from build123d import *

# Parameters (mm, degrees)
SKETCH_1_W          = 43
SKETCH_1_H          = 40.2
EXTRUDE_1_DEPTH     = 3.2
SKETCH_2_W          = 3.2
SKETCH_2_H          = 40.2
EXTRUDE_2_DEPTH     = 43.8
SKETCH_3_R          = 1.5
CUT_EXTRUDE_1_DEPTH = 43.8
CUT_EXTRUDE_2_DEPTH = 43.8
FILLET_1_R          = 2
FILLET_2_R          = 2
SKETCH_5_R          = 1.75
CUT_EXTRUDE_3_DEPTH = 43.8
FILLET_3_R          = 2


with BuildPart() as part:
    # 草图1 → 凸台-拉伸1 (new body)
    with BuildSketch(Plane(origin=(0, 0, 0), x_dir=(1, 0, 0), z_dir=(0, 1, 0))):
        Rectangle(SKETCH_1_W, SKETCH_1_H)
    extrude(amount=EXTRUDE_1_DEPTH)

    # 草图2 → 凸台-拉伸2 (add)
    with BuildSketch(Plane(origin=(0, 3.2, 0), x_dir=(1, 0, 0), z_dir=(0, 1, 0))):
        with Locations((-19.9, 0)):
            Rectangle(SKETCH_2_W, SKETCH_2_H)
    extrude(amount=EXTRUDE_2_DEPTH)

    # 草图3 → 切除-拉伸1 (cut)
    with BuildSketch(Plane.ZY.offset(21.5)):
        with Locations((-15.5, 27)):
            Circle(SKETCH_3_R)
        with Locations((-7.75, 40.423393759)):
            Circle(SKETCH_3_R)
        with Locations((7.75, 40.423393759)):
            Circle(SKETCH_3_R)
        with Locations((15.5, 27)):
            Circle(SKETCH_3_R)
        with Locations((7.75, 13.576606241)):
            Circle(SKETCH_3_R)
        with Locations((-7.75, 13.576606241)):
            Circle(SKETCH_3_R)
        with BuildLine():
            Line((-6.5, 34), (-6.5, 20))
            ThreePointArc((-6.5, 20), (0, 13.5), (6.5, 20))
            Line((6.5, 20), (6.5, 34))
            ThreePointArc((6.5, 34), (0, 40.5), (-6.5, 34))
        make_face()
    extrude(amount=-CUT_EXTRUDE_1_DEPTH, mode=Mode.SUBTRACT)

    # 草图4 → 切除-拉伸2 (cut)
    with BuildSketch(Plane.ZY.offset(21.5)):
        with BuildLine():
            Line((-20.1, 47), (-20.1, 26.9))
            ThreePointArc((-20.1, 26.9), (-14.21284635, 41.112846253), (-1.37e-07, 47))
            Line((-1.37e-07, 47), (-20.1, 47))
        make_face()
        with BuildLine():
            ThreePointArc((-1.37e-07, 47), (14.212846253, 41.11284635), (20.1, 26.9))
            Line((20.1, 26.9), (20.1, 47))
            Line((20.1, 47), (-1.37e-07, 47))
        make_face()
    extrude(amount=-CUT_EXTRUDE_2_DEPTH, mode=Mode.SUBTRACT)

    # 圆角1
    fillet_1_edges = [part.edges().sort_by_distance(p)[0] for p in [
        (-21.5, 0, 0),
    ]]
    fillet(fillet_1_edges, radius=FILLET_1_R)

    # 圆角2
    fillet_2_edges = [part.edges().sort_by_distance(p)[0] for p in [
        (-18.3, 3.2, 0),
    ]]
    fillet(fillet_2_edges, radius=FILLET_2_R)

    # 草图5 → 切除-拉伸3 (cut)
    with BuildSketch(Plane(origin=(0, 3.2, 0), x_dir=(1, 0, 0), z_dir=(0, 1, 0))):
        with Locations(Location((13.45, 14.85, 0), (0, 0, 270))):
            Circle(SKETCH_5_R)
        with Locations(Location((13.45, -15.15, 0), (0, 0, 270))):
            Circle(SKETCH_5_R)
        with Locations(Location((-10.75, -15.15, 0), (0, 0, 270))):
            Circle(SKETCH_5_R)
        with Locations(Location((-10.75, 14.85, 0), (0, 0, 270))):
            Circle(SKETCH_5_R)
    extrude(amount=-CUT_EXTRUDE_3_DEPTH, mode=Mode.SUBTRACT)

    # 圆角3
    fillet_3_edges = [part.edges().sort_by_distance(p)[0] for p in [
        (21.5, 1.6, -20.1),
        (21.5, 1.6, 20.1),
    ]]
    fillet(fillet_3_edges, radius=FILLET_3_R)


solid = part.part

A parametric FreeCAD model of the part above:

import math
import FreeCAD as App
import Part
import Sketcher

V = App.Vector


def edges_at(feature, points):
    """Names of the edges that pass closest to the given points."""
    edges = feature.Shape.Edges
    near = lambda p: min(range(len(edges)), key=lambda i: edges[i].distToShape(Part.Vertex(*p))[0])
    return sorted({f"Edge{near(p) + 1}" for p in points})


def add_polygon(sketch, points):
    """Adds a closed chain of lines whose ends are joined by coincident constraints."""
    first, n = sketch.GeometryCount, len(points)
    for a, b in zip(points, points[1:] + points[:1]):
        sketch.addGeometry(Part.LineSegment(App.Vector(*a, 0), App.Vector(*b, 0)), False)
    for i in range(n):
        sketch.addConstraint(Sketcher.Constraint("Coincident", first + i, 2, first + (i + 1) % n, 1))

doc = App.newDocument("Part")
body = doc.addObject("PartDesign::Body", "Body")

# Sketch on XZ plane
sketch1 = body.newObject("Sketcher::SketchObject", "Sketch")
sketch1.AttachmentSupport = (doc.getObject("XZ_Plane"), [""])
sketch1.MapMode = "FlatFace"
add_polygon(sketch1, [(-22, -20), (-22, 20), (22, 20), (22, -20)])  # lines 0-3
sketch1.addConstraint([
    Sketcher.Constraint("Vertical", 0),
    Sketcher.Constraint("Horizontal", 1),
    Sketcher.Constraint("Vertical", 2),
    Sketcher.Constraint("Horizontal", 3),
    Sketcher.Constraint("Symmetric", 0, 2, 2, 2, -1, 1),
    Sketcher.Constraint("DistanceX", 1, 1, 1, 2, 43.0),
    Sketcher.Constraint("DistanceY", 0, 1, 0, 2, 40.2),
])
pad1 = body.newObject("PartDesign::Pad", "Pad")
pad1.Profile = sketch1
pad1.Length = 3.2
pad1.Reversed = True

# Sketch on XZ plane
sketch2 = body.newObject("Sketcher::SketchObject", "Sketch001")
sketch2.AttachmentSupport = (doc.getObject("XZ_Plane"), [""])
sketch2.MapMode = "FlatFace"
sketch2.AttachmentOffset = App.Placement(V(0, 0, -3.2), App.Rotation())
add_polygon(sketch2, [(-21.5, -20.1), (-21.5, 20.1), (-18.3, 20.1), (-18.3, -20.1)])  # lines 0-3
sketch2.addConstraint([
    Sketcher.Constraint("Vertical", 0),
    Sketcher.Constraint("Horizontal", 1),
    Sketcher.Constraint("Vertical", 2),
    Sketcher.Constraint("Horizontal", 3),
    Sketcher.Constraint("DistanceX", 1, 1, 1, 2, 3.2),
    Sketcher.Constraint("DistanceY", 0, 1, 0, 2, 40.2),
    Sketcher.Constraint("DistanceX", 0, 2, -1, 1, 21.5),
    Sketcher.Constraint("DistanceY", -1, 1, 0, 2, 20.1),
])
pad2 = body.newObject("PartDesign::Pad", "Pad001")
pad2.Profile = sketch2
pad2.Length = 43.8
pad2.Reversed = True

# Sketch on YZ plane
sketch3 = body.newObject("Sketcher::SketchObject", "Sketch002")
sketch3.AttachmentSupport = (doc.getObject("YZ_Plane"), [""])
sketch3.MapMode = "FlatFace"
sketch3.AttachmentOffset = App.Placement(V(0, 0, -21.5), App.Rotation())
sketch3.addGeometry([
    Part.Circle(V(27, -15.5, 0), V(0, 0, 1), 1.5),  # 0
    Part.Circle(V(40.4, -7.8, 0), V(0, 0, 1), 1.5),  # 1
    Part.Circle(V(40.4, 7.8, 0), V(0, 0, 1), 1.5),  # 2
    Part.Circle(V(27, 15.5, 0), V(0, 0, 1), 1.5),  # 3
    Part.Circle(V(13.6, 7.8, 0), V(0, 0, 1), 1.5),  # 4
    Part.Circle(V(13.6, -7.8, 0), V(0, 0, 1), 1.5),  # 5
    Part.LineSegment(V(34, -6.5, 0), V(20, -6.5, 0)),  # 6
    Part.ArcOfCircle(Part.Circle(V(20, 0, 0), V(0, 0, 1), 6.5), math.radians(90), math.radians(270)),  # 7
    Part.LineSegment(V(20, 6.5, 0), V(34, 6.5, 0)),  # 8
    Part.ArcOfCircle(Part.Circle(V(34, 0, 0), V(0, 0, 1), 6.5), math.radians(-90), math.radians(90)),  # 9
], False)
sketch3.addConstraint([
    Sketcher.Constraint("Tangent", 6, 2, 7, 2),
    Sketcher.Constraint("Tangent", 7, 1, 8, 1),
    Sketcher.Constraint("Tangent", 8, 2, 9, 2),
    Sketcher.Constraint("Tangent", 9, 1, 6, 1),
    Sketcher.Constraint("Horizontal", 6),
    Sketcher.Constraint("Horizontal", 8),
    Sketcher.Constraint("Equal", 0, 1),
    Sketcher.Constraint("Equal", 1, 2),
    Sketcher.Constraint("Equal", 2, 3),
    Sketcher.Constraint("Equal", 3, 4),
    Sketcher.Constraint("Equal", 4, 5),
    Sketcher.Constraint("Symmetric", 1, 3, 2, 3, -1),
    Sketcher.Constraint("Symmetric", 0, 3, 3, 3, -1),
    Sketcher.Constraint("Symmetric", 4, 3, 5, 3, -1),
    Sketcher.Constraint("PointOnObject", 7, 3, -1),
    Sketcher.Constraint("Horizontal", 2, 3, 4, 3),
    Sketcher.Constraint("Diameter", 0, 3.0),
    Sketcher.Constraint("Radius", 7, 6.5),
    Sketcher.Constraint("DistanceX", 6, 2, 6, 1, 14.0),
    Sketcher.Constraint("DistanceX", -1, 1, 0, 3, 27.0),
    Sketcher.Constraint("DistanceX", -1, 1, 7, 3, 20.0),
    Sketcher.Constraint("DistanceY", 0, 3, 3, 3, 31.0),
    Sketcher.Constraint("DistanceY", 1, 3, 2, 3, 15.5),
    Sketcher.Constraint("DistanceX", -1, 1, 1, 3, 40.423394),
    Sketcher.Constraint("DistanceX", -1, 1, 4, 3, 13.576606),
])
pocket1 = body.newObject("PartDesign::Pocket", "Pocket")
pocket1.Profile = sketch3
pocket1.Length = 43.8
pocket1.Reversed = True

# Sketch on YZ plane
sketch4 = body.newObject("Sketcher::SketchObject", "Sketch003")
sketch4.AttachmentSupport = (doc.getObject("YZ_Plane"), [""])
sketch4.MapMode = "FlatFace"
sketch4.AttachmentOffset = App.Placement(V(0, 0, -21.5), App.Rotation())
sketch4.addGeometry([
    Part.LineSegment(V(47, -20, 0), V(27, -20, 0)),  # 0
    Part.ArcOfCircle(Part.Circle(V(27, 0, 0), V(0, 0, 1), 20), math.radians(-90), math.radians(0)),  # 1
    Part.LineSegment(V(47, 0, 0), V(47, -20, 0)),  # 2
    Part.ArcOfCircle(Part.Circle(V(27, 0, 0), V(0, 0, 1), 20), math.radians(0), math.radians(90)),  # 3
    Part.LineSegment(V(27, 20, 0), V(47, 20, 0)),  # 4
    Part.LineSegment(V(47, 20, 0), V(47, 0, 0)),  # 5
], False)
sketch4.addConstraint([
    Sketcher.Constraint("Tangent", 0, 2, 1, 1),
    Sketcher.Constraint("Tangent", 1, 2, 2, 1),
    Sketcher.Constraint("Coincident", 2, 2, 0, 1),
    Sketcher.Constraint("Tangent", 3, 2, 4, 1),
    Sketcher.Constraint("Coincident", 4, 2, 5, 1),
    Sketcher.Constraint("Tangent", 5, 2, 3, 1),
    Sketcher.Constraint("Horizontal", 0),
    Sketcher.Constraint("Vertical", 2),
    Sketcher.Constraint("Horizontal", 4),
    Sketcher.Constraint("Vertical", 5),
    Sketcher.Constraint("Coincident", 3, 3, 1, 3),
    Sketcher.Constraint("Equal", 1, 3),
    Sketcher.Constraint("PointOnObject", 1, 3, -1),
    Sketcher.Constraint("Radius", 1, 20.1),
    Sketcher.Constraint("DistanceX", -1, 1, 1, 2, 47.0),
])
pocket2 = body.newObject("PartDesign::Pocket", "Pocket001")
pocket2.Profile = sketch4
pocket2.Length = 43.8
pocket2.Reversed = True
doc.recompute()

fillet = body.newObject("PartDesign::Fillet", "Fillet")
fillet.Base = (pocket2, edges_at(pocket2, [(-21.5, 0, 0)]))
fillet.Radius = 2
doc.recompute()

fillet2 = body.newObject("PartDesign::Fillet", "Fillet001")
fillet2.Base = (fillet, edges_at(fillet, [(-18.3, 3.2, 0)]))
fillet2.Radius = 2

# Sketch on XZ plane
sketch5 = body.newObject("Sketcher::SketchObject", "Sketch004")
sketch5.AttachmentSupport = (doc.getObject("XZ_Plane"), [""])
sketch5.MapMode = "FlatFace"
sketch5.AttachmentOffset = App.Placement(V(0, 0, -3.2), App.Rotation())
sketch5.addGeometry([
    Part.Circle(V(13.4, -14.8, 0), V(0, 0, 1), 1.8),
    Part.Circle(V(13.4, 15.2, 0), V(0, 0, 1), 1.8),
    Part.Circle(V(-10.8, 15.2, 0), V(0, 0, 1), 1.8),
    Part.Circle(V(-10.8, -14.8, 0), V(0, 0, 1), 1.8),
], False)
sketch5.addConstraint([
    Sketcher.Constraint("Equal", 0, 1),
    Sketcher.Constraint("Equal", 1, 2),
    Sketcher.Constraint("Equal", 2, 3),
    Sketcher.Constraint("Horizontal", 1, 3, 2, 3),
    Sketcher.Constraint("Horizontal", 0, 3, 3, 3),
    Sketcher.Constraint("Vertical", 0, 3, 1, 3),
    Sketcher.Constraint("Vertical", 2, 3, 3, 3),
    Sketcher.Constraint("Diameter", 0, 3.5),
    Sketcher.Constraint("DistanceY", 0, 3, 1, 3, 30.0),
    Sketcher.Constraint("DistanceX", 2, 3, 1, 3, 24.2),
    Sketcher.Constraint("DistanceX", -1, 1, 0, 3, 13.45),
    Sketcher.Constraint("DistanceY", 0, 3, -1, 1, 14.85),
])
pocket3 = body.newObject("PartDesign::Pocket", "Pocket002")
pocket3.Profile = sketch5
pocket3.Length = 43.8
pocket3.Reversed = True
doc.recompute()

fillet3 = body.newObject("PartDesign::Fillet", "Fillet002")
fillet3.Base = (pocket3, edges_at(pocket3, [(21.5, 1.6, -20.1), (21.5, 1.6, 20.1)]))
fillet3.Radius = 2

doc.recompute()
